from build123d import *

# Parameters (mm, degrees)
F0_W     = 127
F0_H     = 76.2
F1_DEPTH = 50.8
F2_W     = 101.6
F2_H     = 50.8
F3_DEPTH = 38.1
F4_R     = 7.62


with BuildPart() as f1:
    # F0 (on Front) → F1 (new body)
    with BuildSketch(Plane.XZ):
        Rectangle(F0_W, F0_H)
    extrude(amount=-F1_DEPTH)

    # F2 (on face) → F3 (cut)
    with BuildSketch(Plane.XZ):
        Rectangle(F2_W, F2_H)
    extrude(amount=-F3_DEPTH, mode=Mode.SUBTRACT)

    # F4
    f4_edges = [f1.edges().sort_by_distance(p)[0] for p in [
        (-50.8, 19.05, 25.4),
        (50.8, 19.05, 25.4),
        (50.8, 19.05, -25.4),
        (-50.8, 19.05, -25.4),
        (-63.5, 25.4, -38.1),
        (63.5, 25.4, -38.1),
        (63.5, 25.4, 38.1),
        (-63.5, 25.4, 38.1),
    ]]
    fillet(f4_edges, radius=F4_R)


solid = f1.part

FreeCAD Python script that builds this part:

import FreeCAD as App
import Part
import Sketcher

V = App.Vector
Q = App.Units.Quantity


def edges_at(feature, points):
    """Names of the edges that pass closest to the given points."""
    edges = feature.Shape.Edges
    near = lambda p: min(range(len(edges)), key=lambda i: edges[i].distToShape(Part.Vertex(*p))[0])
    return sorted({f"Edge{near(p) + 1}" for p in points})


def add_polygon(sketch, points):
    """Adds a closed chain of lines whose ends are joined by coincident constraints."""
    first, n = sketch.GeometryCount, len(points)
    for a, b in zip(points, points[1:] + points[:1]):
        sketch.addGeometry(Part.LineSegment(App.Vector(*a, 0), App.Vector(*b, 0)), False)
    for i in range(n):
        sketch.addConstraint(Sketcher.Constraint("Coincident", first + i, 2, first + (i + 1) % n, 1))

doc = App.newDocument("Part")
body = doc.addObject("PartDesign::Body", "Body")

sketch1 = doc.addObject("Sketcher::SketchObject", "Sketch")
body.addObject(sketch1)
sketch1.AttachmentSupport = (doc.XZ_Plane, [""])
sketch1.MapMode = "FlatFace"
add_polygon(sketch1, [(-64, 38), (-64, -38), (64, -38), (64, 38)])
sketch1.addConstraint([
    Sketcher.Constraint("Vertical", 0),
    Sketcher.Constraint("Horizontal", 1),
    Sketcher.Constraint("Vertical", 2),
    Sketcher.Constraint("Horizontal", 3),
    Sketcher.Constraint("Symmetric", 0, 2, 2, 2, -1, 1),
    Sketcher.Constraint("DistanceX", 1, 1, 1, 2, Q("5 in")),
    Sketcher.Constraint("DistanceY", 0, 2, 0, 1, Q("3 in")),
])
pad1 = doc.addObject("PartDesign::Pad", "Pad")
body.addObject(pad1)
pad1.Profile = sketch1
pad1.Length = Q("2 in")
pad1.Reversed = True

sketch2 = doc.addObject("Sketcher::SketchObject", "Sketch001")
body.addObject(sketch2)
sketch2.AttachmentSupport = (doc.XZ_Plane, [""])
sketch2.MapMode = "FlatFace"
add_polygon(sketch2, [(-51, 25), (-51, -25), (51, -25), (51, 25)])
sketch2.addConstraint([
    Sketcher.Constraint("Vertical", 0),
    Sketcher.Constraint("Horizontal", 1),
    Sketcher.Constraint("Vertical", 2),
    Sketcher.Constraint("Horizontal", 3),
    Sketcher.Constraint("Symmetric", 0, 2, 2, 2, -1, 1),
    Sketcher.Constraint("DistanceX", 1, 1, 1, 2, Q("4 in")),
    Sketcher.Constraint("DistanceY", 0, 2, 0, 1, Q("2 in")),
])
pocket1 = doc.addObject("PartDesign::Pocket", "Pocket")
body.addObject(pocket1)
pocket1.Profile = sketch2
pocket1.Length = Q("1.5 in")
doc.recompute()

fillet = doc.addObject("PartDesign::Fillet", "Fillet")
body.addObject(fillet)
fillet.Base = (pocket1, edges_at(pocket1, [
    (-50.8, 19.05, 25.4),
    (50.8, 19.05, 25.4),
    (50.8, 19.05, -25.4),
    (-50.8, 19.05, -25.4),
    (-63.5, 25.4, -38.1),
    (63.5, 25.4, -38.1),
    (63.5, 25.4, 38.1),
    (-63.5, 25.4, 38.1),
]))
fillet.Radius = Q("0.3 in")

doc.recompute()
